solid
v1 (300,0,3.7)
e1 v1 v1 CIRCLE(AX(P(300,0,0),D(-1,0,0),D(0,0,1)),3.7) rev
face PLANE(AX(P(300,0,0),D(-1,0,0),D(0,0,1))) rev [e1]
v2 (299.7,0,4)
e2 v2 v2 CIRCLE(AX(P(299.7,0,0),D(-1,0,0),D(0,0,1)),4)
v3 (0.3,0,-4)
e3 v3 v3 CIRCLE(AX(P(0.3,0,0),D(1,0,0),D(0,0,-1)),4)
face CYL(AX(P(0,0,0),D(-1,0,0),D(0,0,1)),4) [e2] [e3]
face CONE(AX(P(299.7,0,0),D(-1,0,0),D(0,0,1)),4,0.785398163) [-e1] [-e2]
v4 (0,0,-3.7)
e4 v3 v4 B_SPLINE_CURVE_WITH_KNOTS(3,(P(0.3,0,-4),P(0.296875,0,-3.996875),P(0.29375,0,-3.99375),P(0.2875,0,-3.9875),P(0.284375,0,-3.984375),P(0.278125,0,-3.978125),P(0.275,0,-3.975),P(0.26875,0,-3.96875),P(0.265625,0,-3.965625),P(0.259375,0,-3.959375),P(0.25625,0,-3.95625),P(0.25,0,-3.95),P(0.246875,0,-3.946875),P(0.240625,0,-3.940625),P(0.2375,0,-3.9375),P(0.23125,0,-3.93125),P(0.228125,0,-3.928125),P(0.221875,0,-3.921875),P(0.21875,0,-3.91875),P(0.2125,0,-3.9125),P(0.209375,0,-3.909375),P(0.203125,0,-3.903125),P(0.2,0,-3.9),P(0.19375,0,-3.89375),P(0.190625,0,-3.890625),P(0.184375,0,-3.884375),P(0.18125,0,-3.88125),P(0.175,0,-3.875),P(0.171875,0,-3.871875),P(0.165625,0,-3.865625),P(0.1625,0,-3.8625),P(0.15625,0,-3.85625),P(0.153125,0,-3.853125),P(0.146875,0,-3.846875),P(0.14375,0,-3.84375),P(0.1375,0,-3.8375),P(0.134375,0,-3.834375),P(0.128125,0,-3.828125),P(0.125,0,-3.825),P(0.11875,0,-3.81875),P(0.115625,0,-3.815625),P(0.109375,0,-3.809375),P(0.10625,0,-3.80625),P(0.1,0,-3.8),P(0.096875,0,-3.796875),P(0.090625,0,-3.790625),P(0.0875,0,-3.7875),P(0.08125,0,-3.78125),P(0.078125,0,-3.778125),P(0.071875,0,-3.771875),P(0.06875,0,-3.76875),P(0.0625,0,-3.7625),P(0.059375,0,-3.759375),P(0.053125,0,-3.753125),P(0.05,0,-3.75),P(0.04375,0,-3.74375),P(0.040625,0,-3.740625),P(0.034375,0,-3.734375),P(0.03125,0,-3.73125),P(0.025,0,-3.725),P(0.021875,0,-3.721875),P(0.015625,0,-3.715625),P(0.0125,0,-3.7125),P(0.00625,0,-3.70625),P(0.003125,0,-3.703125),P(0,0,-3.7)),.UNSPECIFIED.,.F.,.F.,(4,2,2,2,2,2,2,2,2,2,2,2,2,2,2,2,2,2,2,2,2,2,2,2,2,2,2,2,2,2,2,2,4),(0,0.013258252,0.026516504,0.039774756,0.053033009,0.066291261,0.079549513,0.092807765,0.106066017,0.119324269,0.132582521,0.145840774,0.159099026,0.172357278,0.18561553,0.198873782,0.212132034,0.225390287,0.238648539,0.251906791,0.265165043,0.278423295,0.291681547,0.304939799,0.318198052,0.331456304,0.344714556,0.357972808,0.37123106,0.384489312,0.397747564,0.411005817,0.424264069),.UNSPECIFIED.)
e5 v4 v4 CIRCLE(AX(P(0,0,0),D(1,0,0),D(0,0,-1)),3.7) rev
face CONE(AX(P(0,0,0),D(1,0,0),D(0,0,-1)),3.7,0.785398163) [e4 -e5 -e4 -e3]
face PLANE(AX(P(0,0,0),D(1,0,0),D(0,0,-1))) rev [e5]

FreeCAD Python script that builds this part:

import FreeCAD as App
import Part
import Sketcher
from FreeCAD import Vector
Q = App.Units.Quantity


def edges_at(feature, points):
    """Names of the edges that pass closest to the given points."""
    edges = feature.Shape.Edges
    near = lambda p: min(range(len(edges)), key=lambda i: edges[i].distToShape(Part.Vertex(*p))[0])
    return sorted({f"Edge{near(p) + 1}" for p in points})


def add_polygon(sketch, points):
    """Adds a closed chain of lines whose ends are joined by coincident constraints."""
    first, n = sketch.GeometryCount, len(points)
    for a, b in zip(points, points[1:] + points[:1]):
        sketch.addGeometry(Part.LineSegment(App.Vector(*a, 0), App.Vector(*b, 0)), False)
    for i in range(n):
        sketch.addConstraint(Sketcher.Constraint("Coincident", first + i, 2, first + (i + 1) % n, 1))

doc = App.newDocument("Part")
body = doc.addObject("PartDesign::Body", "Body")

sketch1 = body.newObject("Sketcher::SketchObject", "Sketch")
sketch1.AttachmentSupport = (doc.getObject("XY_Plane"), [""])
sketch1.MapMode = "FlatFace"
add_polygon(sketch1, [(0, 4), (0, 0), (300, 0), (300, 4)])
sketch1.addConstraint(Sketcher.Constraint("Vertical", 0))
sketch1.addConstraint(Sketcher.Constraint("Horizontal", 1))
sketch1.addConstraint(Sketcher.Constraint("Vertical", 2))
sketch1.addConstraint(Sketcher.Constraint("Horizontal", 3))
sketch1.addConstraint(Sketcher.Constraint("Coincident", 0, 2, -1, 1))
sketch1.addConstraint(Sketcher.Constraint("DistanceX", 1, 1, 1, 2, Q("300 mm")))
sketch1.addConstraint(Sketcher.Constraint("DistanceY", 0, 2, 0, 1, Q("4 mm")))
revolution = body.newObject("PartDesign::Revolution", "Revolution")
revolution.Profile = sketch1
revolution.ReferenceAxis = (sketch1, ["H_Axis"])
revolution.Angle = 360
doc.recompute()

chamfer = body.newObject("PartDesign::Chamfer", "Chamfer")
chamfer.Base = (revolution, edges_at(revolution, [(300, 0, -4), (0, 0, -4)]))
chamfer.Size = 0.3

doc.recompute()
